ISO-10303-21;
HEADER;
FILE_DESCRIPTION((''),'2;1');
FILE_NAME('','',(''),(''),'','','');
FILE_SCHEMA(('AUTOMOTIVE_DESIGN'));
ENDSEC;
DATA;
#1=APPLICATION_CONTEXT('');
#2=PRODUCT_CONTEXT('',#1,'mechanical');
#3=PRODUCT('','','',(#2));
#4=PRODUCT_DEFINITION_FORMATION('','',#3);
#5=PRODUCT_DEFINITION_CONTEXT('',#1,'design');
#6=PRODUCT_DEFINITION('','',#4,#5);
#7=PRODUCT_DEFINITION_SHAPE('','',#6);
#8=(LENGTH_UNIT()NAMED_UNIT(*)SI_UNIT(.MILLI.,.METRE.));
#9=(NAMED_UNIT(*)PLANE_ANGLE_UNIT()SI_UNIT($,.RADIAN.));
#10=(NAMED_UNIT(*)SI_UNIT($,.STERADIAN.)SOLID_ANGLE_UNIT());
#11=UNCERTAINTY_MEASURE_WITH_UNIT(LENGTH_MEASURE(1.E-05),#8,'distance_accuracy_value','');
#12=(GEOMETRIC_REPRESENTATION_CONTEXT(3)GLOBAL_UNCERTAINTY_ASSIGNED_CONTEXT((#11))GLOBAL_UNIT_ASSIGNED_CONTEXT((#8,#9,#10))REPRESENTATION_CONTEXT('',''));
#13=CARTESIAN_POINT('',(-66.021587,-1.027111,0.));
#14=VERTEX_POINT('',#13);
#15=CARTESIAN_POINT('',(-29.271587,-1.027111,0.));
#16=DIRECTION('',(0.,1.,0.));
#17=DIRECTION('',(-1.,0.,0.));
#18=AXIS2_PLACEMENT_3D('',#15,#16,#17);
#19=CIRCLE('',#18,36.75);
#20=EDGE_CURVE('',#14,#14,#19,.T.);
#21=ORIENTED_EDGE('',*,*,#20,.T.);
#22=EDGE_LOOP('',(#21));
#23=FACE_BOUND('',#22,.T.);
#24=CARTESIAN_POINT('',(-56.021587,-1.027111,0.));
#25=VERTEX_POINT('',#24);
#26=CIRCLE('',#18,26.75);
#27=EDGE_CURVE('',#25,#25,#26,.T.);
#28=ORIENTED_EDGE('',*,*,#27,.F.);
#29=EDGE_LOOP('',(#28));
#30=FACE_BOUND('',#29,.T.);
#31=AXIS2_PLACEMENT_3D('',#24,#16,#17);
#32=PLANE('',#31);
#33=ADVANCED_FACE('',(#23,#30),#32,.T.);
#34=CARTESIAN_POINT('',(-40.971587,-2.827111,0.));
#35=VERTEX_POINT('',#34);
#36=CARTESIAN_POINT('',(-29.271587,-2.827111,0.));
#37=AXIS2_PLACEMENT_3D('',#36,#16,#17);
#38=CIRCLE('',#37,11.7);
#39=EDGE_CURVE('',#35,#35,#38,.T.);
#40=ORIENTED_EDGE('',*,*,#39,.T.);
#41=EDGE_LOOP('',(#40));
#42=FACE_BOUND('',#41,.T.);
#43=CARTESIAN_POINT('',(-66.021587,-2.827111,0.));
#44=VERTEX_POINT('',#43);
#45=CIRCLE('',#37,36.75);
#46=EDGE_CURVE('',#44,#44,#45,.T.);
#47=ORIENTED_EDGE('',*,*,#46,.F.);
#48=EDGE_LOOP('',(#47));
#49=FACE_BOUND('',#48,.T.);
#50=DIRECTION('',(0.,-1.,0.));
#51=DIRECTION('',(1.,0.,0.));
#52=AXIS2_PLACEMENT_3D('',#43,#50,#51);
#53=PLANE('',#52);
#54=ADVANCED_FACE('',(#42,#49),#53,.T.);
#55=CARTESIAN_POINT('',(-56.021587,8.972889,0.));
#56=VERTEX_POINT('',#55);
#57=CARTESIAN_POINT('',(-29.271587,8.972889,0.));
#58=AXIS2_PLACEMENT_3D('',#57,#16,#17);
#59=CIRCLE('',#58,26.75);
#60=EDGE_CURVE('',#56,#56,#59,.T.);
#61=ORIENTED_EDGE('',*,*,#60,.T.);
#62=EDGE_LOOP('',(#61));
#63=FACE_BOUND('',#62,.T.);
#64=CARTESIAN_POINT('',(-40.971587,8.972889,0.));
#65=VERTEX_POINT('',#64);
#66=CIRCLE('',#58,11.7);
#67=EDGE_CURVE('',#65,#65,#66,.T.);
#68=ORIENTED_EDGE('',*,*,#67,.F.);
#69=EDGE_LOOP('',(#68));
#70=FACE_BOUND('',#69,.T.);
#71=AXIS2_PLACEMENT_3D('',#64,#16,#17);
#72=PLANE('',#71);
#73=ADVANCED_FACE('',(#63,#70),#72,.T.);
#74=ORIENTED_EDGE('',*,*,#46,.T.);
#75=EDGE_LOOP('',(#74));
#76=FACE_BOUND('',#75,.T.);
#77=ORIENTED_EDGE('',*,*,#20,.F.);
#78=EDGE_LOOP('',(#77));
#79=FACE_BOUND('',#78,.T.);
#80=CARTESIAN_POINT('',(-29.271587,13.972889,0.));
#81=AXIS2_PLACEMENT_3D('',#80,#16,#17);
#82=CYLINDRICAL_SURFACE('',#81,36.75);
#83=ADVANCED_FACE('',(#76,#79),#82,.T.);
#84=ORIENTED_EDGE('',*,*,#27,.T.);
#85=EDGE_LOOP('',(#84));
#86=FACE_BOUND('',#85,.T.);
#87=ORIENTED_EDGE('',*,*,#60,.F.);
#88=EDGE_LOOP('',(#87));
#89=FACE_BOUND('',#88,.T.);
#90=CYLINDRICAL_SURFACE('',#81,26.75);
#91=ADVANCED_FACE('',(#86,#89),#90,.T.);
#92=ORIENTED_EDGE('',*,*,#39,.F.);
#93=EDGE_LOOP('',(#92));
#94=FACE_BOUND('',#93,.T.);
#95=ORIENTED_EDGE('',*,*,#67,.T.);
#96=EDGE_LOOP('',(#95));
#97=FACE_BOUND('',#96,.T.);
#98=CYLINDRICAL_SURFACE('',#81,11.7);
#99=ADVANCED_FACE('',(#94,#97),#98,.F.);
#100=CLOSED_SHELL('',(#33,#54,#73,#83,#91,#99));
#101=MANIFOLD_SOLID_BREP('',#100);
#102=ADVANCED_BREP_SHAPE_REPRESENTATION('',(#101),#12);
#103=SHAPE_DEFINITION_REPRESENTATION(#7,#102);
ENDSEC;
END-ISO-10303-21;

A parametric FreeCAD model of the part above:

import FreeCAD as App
import Part
import Sketcher

V = App.Vector

doc = App.newDocument("Part")
body = doc.addObject("PartDesign::Body", "Body")

# Sketch on XY plane
sketch1 = body.newObject("Sketcher::SketchObject", "Sketch")
sketch1.AttachmentSupport = (doc.getObject("XY_Plane"), [""])
sketch1.MapMode = "FlatFace"
sketch1.addGeometry([
    Part.LineSegment(V(-41, -2.8, 0), V(-41, 9, 0)),  # 0
    Part.LineSegment(V(-41, 9, 0), V(-56, 9, 0)),  # 1
    Part.LineSegment(V(-56, 9, 0), V(-56, -1, 0)),  # 2
    Part.LineSegment(V(-56, -1, 0), V(-66, -1, 0)),  # 3
    Part.LineSegment(V(-66, -1, 0), V(-66, -2.8, 0)),  # 4
    Part.LineSegment(V(-66, -2.8, 0), V(-41, -2.8, 0)),  # 5
], False)
sketch1.addGeometry(Part.LineSegment(V(-29.3, 9, 0), V(-29.3, -2.8, 0)), True)  # axis
sketch1.addConstraint([
    Sketcher.Constraint("Coincident", 0, 2, 1, 1),
    Sketcher.Constraint("Coincident", 1, 2, 2, 1),
    Sketcher.Constraint("Coincident", 2, 2, 3, 1),
    Sketcher.Constraint("Coincident", 3, 2, 4, 1),
    Sketcher.Constraint("Coincident", 4, 2, 5, 1),
    Sketcher.Constraint("Coincident", 5, 2, 0, 1),
    Sketcher.Constraint("Vertical", 0),
    Sketcher.Constraint("Horizontal", 1),
    Sketcher.Constraint("Vertical", 2),
    Sketcher.Constraint("Horizontal", 3),
    Sketcher.Constraint("Vertical", 4),
    Sketcher.Constraint("Horizontal", 5),
    Sketcher.Constraint("Vertical", 6),
    Sketcher.Constraint("Horizontal", 1, 2, 6, 1),
    Sketcher.Constraint("Horizontal", 5, 2, 6, 2),
    Sketcher.Constraint("Equal", 3, 2),
    Sketcher.Constraint("DistanceX", 3, 2, 3, 1, 10.0),
    Sketcher.Constraint("DistanceY", 0, 1, 0, 2, 11.8),
    Sketcher.Constraint("DistanceX", 1, 2, 1, 1, 15.05),
    Sketcher.Constraint("DistanceX", 0, 2, 6, 1, 11.7),
    Sketcher.Constraint("DistanceY", -1, 1, 0, 2, 8.972889),
    Sketcher.Constraint("DistanceX", 0, 2, -1, 1, 40.971587),
])
revolution = body.newObject("PartDesign::Revolution", "Revolution")
revolution.Profile = sketch1
revolution.ReferenceAxis = (sketch1, ["Axis0"])
revolution.Angle = 360

doc.recompute()
